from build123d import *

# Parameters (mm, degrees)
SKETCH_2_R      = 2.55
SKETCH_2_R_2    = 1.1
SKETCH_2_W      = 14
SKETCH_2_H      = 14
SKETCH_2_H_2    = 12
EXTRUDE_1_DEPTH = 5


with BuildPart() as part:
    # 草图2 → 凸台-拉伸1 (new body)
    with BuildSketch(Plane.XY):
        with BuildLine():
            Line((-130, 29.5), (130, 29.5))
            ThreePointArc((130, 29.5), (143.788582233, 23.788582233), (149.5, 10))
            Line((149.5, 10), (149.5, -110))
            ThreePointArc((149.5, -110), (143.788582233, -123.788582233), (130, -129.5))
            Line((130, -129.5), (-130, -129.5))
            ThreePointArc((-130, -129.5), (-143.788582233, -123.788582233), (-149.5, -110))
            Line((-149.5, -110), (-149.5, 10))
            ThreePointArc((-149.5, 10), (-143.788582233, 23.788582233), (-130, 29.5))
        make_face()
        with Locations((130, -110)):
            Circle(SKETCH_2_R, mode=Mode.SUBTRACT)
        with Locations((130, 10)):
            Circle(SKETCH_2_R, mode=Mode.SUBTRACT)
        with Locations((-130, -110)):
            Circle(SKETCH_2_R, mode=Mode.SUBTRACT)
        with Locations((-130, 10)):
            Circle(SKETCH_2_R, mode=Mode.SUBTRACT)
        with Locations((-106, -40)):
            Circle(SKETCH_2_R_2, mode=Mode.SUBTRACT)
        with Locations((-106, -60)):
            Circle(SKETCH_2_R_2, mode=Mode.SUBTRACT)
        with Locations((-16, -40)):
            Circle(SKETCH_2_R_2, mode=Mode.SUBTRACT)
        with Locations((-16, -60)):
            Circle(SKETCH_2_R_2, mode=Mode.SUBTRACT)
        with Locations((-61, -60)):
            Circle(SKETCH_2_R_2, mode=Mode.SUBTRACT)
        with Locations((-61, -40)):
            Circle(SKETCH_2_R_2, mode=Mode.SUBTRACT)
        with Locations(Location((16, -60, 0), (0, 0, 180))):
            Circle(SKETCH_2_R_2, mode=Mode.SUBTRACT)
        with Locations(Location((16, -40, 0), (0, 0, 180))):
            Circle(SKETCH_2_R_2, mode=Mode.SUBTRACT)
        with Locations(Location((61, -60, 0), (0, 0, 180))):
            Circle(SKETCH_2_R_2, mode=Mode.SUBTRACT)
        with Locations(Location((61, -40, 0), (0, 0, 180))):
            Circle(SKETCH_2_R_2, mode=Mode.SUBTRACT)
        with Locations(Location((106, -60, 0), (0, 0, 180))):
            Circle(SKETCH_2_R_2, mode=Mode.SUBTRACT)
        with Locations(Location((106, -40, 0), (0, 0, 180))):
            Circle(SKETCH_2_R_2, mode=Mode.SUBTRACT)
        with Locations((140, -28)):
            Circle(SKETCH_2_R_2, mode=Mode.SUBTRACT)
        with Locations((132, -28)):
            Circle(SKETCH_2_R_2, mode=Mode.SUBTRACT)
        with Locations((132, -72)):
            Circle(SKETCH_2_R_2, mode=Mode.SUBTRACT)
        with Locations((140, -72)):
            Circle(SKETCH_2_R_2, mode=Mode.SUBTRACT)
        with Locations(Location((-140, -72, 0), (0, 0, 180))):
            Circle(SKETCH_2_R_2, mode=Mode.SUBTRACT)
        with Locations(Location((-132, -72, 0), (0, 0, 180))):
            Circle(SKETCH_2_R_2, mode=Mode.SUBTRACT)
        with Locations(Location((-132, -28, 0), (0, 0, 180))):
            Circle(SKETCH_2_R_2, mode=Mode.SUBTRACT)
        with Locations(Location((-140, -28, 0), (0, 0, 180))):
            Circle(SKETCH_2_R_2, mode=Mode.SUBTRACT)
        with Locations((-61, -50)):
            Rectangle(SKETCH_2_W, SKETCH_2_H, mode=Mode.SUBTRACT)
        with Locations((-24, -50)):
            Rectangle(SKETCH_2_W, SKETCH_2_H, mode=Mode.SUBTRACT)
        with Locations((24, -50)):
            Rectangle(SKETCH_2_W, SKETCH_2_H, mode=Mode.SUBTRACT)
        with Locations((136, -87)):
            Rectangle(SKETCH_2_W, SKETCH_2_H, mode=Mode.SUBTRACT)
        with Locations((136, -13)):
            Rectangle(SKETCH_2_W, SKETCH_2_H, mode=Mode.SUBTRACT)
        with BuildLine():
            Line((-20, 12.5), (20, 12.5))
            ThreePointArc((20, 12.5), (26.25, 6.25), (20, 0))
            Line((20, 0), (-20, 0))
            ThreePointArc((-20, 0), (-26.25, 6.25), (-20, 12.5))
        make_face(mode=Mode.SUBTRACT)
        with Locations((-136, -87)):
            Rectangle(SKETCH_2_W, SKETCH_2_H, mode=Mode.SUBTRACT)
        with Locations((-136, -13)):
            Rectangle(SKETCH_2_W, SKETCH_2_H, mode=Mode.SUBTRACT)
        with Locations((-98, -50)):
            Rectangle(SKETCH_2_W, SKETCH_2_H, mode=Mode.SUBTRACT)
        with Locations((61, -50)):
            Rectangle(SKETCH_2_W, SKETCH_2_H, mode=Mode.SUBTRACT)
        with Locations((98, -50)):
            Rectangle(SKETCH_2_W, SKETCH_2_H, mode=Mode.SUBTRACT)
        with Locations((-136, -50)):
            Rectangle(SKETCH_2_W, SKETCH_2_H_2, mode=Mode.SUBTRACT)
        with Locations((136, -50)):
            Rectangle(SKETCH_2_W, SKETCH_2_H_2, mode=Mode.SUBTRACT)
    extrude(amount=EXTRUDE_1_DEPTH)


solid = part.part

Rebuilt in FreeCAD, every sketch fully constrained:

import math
import FreeCAD as App
import Part
import Sketcher
from FreeCAD import Vector
Q = App.Units.Quantity


def add_polygon(sketch, points):
    """Adds a closed chain of lines whose ends are joined by coincident constraints."""
    first, n = sketch.GeometryCount, len(points)
    for a, b in zip(points, points[1:] + points[:1]):
        sketch.addGeometry(Part.LineSegment(App.Vector(*a, 0), App.Vector(*b, 0)), False)
    for i in range(n):
        sketch.addConstraint(Sketcher.Constraint("Coincident", first + i, 2, first + (i + 1) % n, 1))

doc = App.newDocument("Part")
body = doc.addObject("PartDesign::Body", "Body")

# Sketch on XY plane
sketch1 = doc.addObject("Sketcher::SketchObject", "Sketch")
body.addObject(sketch1)
sketch1.AttachmentSupport = (doc.XY_Plane, [""])
sketch1.MapMode = "FlatFace"
sketch1.addGeometry(Part.LineSegment(Vector(130, 29.5, 0), Vector(-130, 29.5, 0)), False)  # 0
sketch1.addGeometry(Part.ArcOfCircle(Part.Circle(Vector(-130, 10, 0), Vector(0, 0, 1), 19.5), math.radians(90), math.radians(180)), False)  # 1
sketch1.addGeometry(Part.LineSegment(Vector(-149.5, 10, 0), Vector(-149.5, -110, 0)), False)  # 2
sketch1.addGeometry(Part.ArcOfCircle(Part.Circle(Vector(-130, -110, 0), Vector(0, 0, 1), 19.5), math.radians(180), math.radians(270)), False)  # 3
sketch1.addGeometry(Part.LineSegment(Vector(-130, -129.5, 0), Vector(130, -129.5, 0)), False)  # 4
sketch1.addGeometry(Part.ArcOfCircle(Part.Circle(Vector(130, -110, 0), Vector(0, 0, 1), 19.5), math.radians(-90), math.radians(0)), False)  # 5
sketch1.addGeometry(Part.LineSegment(Vector(149.5, -110, 0), Vector(149.5, 10, 0)), False)  # 6
sketch1.addGeometry(Part.ArcOfCircle(Part.Circle(Vector(130, 10, 0), Vector(0, 0, 1), 19.5), math.radians(0), math.radians(90)), False)  # 7
sketch1.addGeometry(Part.Circle(Vector(130, -110, 0), Vector(0, 0, 1), 2.55), False)  # 8
add_polygon(sketch1, [(129, -94), (129, -80), (143, -80), (143, -94)])  # lines 9-12
sketch1.addGeometry(Part.Circle(Vector(140, -72, 0), Vector(0, 0, 1), 1.1), False)  # 13
sketch1.addGeometry(Part.Circle(Vector(132, -72, 0), Vector(0, 0, 1), 1.1), False)  # 14
sketch1.addGeometry(Part.Circle(Vector(106, -60, 0), Vector(0, 0, 1), 1.1), False)  # 15
sketch1.addGeometry(Part.Circle(Vector(61, -60, 0), Vector(0, 0, 1), 1.1), False)  # 16
sketch1.addGeometry(Part.Circle(Vector(16, -60, 0), Vector(0, 0, 1), 1.1), False)  # 17
sketch1.addGeometry(Part.Circle(Vector(-130, -110, 0), Vector(0, 0, 1), 2.55), False)  # 18
add_polygon(sketch1, [(-143, -94), (-143, -80), (-129, -80), (-129, -94)])  # lines 19-22
sketch1.addGeometry(Part.Circle(Vector(-16, -60, 0), Vector(0, 0, 1), 1.1), False)  # 23
sketch1.addGeometry(Part.Circle(Vector(-61, -60, 0), Vector(0, 0, 1), 1.1), False)  # 24
sketch1.addGeometry(Part.Circle(Vector(-132, -72, 0), Vector(0, 0, 1), 1.1), False)  # 25
sketch1.addGeometry(Part.Circle(Vector(-140, -72, 0), Vector(0, 0, 1), 1.1), False)  # 26
sketch1.addGeometry(Part.Circle(Vector(-106, -60, 0), Vector(0, 0, 1), 1.1), False)  # 27
add_polygon(sketch1, [(129, -56), (129, -44), (143, -44), (143, -56)])  # lines 28-31
add_polygon(sketch1, [(91, -57), (91, -43), (105, -43), (105, -57)])  # lines 32-35
sketch1.addGeometry(Part.Circle(Vector(106, -40, 0), Vector(0, 0, 1), 1.1), False)  # 36
sketch1.addGeometry(Part.Circle(Vector(140, -28, 0), Vector(0, 0, 1), 1.1), False)  # 37
sketch1.addGeometry(Part.Circle(Vector(132, -28, 0), Vector(0, 0, 1), 1.1), False)  # 38
add_polygon(sketch1, [(54, -57), (54, -43), (68, -43), (68, -57)])  # lines 39-42
sketch1.addGeometry(Part.Circle(Vector(61, -40, 0), Vector(0, 0, 1), 1.1), False)  # 43
add_polygon(sketch1, [(17, -57), (17, -43), (31, -43), (31, -57)])  # lines 44-47
sketch1.addGeometry(Part.Circle(Vector(16, -40, 0), Vector(0, 0, 1), 1.1), False)  # 48
add_polygon(sketch1, [(129, -20), (129, -6), (143, -6), (143, -20)])  # lines 49-52
sketch1.addGeometry(Part.Circle(Vector(130, 10, 0), Vector(0, 0, 1), 2.55), False)  # 53
add_polygon(sketch1, [(-31, -57), (-31, -43), (-17, -43), (-17, -57)])  # lines 54-57
sketch1.addGeometry(Part.Circle(Vector(-16, -40, 0), Vector(0, 0, 1), 1.1), False)  # 58
add_polygon(sketch1, [(-68, -57), (-68, -43), (-54, -43), (-54, -57)])  # lines 59-62
sketch1.addGeometry(Part.Circle(Vector(-61, -40, 0), Vector(0, 0, 1), 1.1), False)  # 63
add_polygon(sketch1, [(-105, -57), (-105, -43), (-91, -43), (-91, -57)])  # lines 64-67
sketch1.addGeometry(Part.Circle(Vector(-106, -40, 0), Vector(0, 0, 1), 1.1), False)  # 68
add_polygon(sketch1, [(-143, -56), (-143, -44), (-129, -44), (-129, -56)])  # lines 69-72
sketch1.addGeometry(Part.Circle(Vector(-132, -28, 0), Vector(0, 0, 1), 1.1), False)  # 73
sketch1.addGeometry(Part.Circle(Vector(-140, -28, 0), Vector(0, 0, 1), 1.1), False)  # 74
sketch1.addGeometry(Part.LineSegment(Vector(-20, 12.5, 0), Vector(20, 12.5, 0)), False)  # 75
sketch1.addGeometry(Part.ArcOfCircle(Part.Circle(Vector(20, 6.25, 0), Vector(0, 0, 1), 6.25), math.radians(-90), math.radians(90)), False)  # 76
sketch1.addGeometry(Part.LineSegment(Vector(20, 0, 0), Vector(-20, 0, 0)), False)  # 77
sketch1.addGeometry(Part.ArcOfCircle(Part.Circle(Vector(-20, 6.25, 0), Vector(0, 0, 1), 6.25), math.radians(90), math.radians(270)), False)  # 78
add_polygon(sketch1, [(-143, -20), (-143, -6), (-129, -6), (-129, -20)])  # lines 79-82
sketch1.addGeometry(Part.Circle(Vector(-130, 10, 0), Vector(0, 0, 1), 2.55), False)  # 83
sketch1.addConstraint([
    Sketcher.Constraint("Tangent", 0, 2, 1, 1),
    Sketcher.Constraint("Tangent", 1, 2, 2, 1),
    Sketcher.Constraint("Tangent", 2, 2, 3, 1),
    Sketcher.Constraint("Tangent", 3, 2, 4, 1),
    Sketcher.Constraint("Tangent", 4, 2, 5, 1),
    Sketcher.Constraint("Tangent", 5, 2, 6, 1),
    Sketcher.Constraint("Tangent", 6, 2, 7, 1),
    Sketcher.Constraint("Tangent", 7, 2, 0, 1),
    Sketcher.Constraint("Tangent", 75, 2, 76, 2),
    Sketcher.Constraint("Tangent", 76, 1, 77, 1),
    Sketcher.Constraint("Tangent", 77, 2, 78, 2),
    Sketcher.Constraint("Tangent", 78, 1, 75, 1),
    Sketcher.Constraint("Horizontal", 0),
    Sketcher.Constraint("Vertical", 2),
    Sketcher.Constraint("Horizontal", 4),
    Sketcher.Constraint("Vertical", 6),
    Sketcher.Constraint("Vertical", 9),
    Sketcher.Constraint("Horizontal", 10),
    Sketcher.Constraint("Vertical", 11),
    Sketcher.Constraint("Horizontal", 12),
    Sketcher.Constraint("Vertical", 19),
    Sketcher.Constraint("Horizontal", 20),
    Sketcher.Constraint("Vertical", 21),
    Sketcher.Constraint("Horizontal", 22),
    Sketcher.Constraint("Vertical", 28),
    Sketcher.Constraint("Horizontal", 29),
    Sketcher.Constraint("Vertical", 30),
    Sketcher.Constraint("Horizontal", 31),
    Sketcher.Constraint("Vertical", 32),
    Sketcher.Constraint("Horizontal", 33),
    Sketcher.Constraint("Vertical", 34),
    Sketcher.Constraint("Horizontal", 35),
    Sketcher.Constraint("Vertical", 39),
    Sketcher.Constraint("Horizontal", 40),
    Sketcher.Constraint("Vertical", 41),
    Sketcher.Constraint("Horizontal", 42),
    Sketcher.Constraint("Vertical", 44),
    Sketcher.Constraint("Horizontal", 45),
    Sketcher.Constraint("Vertical", 46),
    Sketcher.Constraint("Horizontal", 47),
    Sketcher.Constraint("Vertical", 49),
    Sketcher.Constraint("Horizontal", 50),
    Sketcher.Constraint("Vertical", 51),
    Sketcher.Constraint("Horizontal", 52),
    Sketcher.Constraint("Vertical", 54),
    Sketcher.Constraint("Horizontal", 55),
    Sketcher.Constraint("Vertical", 56),
    Sketcher.Constraint("Horizontal", 57),
    Sketcher.Constraint("Vertical", 59),
    Sketcher.Constraint("Horizontal", 60),
    Sketcher.Constraint("Vertical", 61),
    Sketcher.Constraint("Horizontal", 62),
    Sketcher.Constraint("Vertical", 64),
    Sketcher.Constraint("Horizontal", 65),
    Sketcher.Constraint("Vertical", 66),
    Sketcher.Constraint("Horizontal", 67),
    Sketcher.Constraint("Vertical", 69),
    Sketcher.Constraint("Horizontal", 70),
    Sketcher.Constraint("Vertical", 71),
    Sketcher.Constraint("Horizontal", 72),
    Sketcher.Constraint("Horizontal", 75),
    Sketcher.Constraint("Horizontal", 77),
    Sketcher.Constraint("Vertical", 79),
    Sketcher.Constraint("Horizontal", 80),
    Sketcher.Constraint("Vertical", 81),
    Sketcher.Constraint("Horizontal", 82),
    Sketcher.Constraint("Coincident", 8, 3, 5, 3),
    Sketcher.Constraint("Coincident", 18, 3, 3, 3),
    Sketcher.Constraint("Coincident", 53, 3, 7, 3),
    Sketcher.Constraint("Coincident", 83, 3, 1, 3),
    Sketcher.Constraint("Equal", 1, 3),
    Sketcher.Constraint("Equal", 3, 5),
    Sketcher.Constraint("Equal", 5, 7),
    Sketcher.Constraint("Equal", 13, 14),
    Sketcher.Constraint("Equal", 14, 15),
    Sketcher.Constraint("Equal", 15, 16),
    Sketcher.Constraint("Equal", 16, 17),
    Sketcher.Constraint("Equal", 8, 18),
    Sketcher.Constraint("Equal", 17, 23),
    Sketcher.Constraint("Equal", 23, 24),
    Sketcher.Constraint("Equal", 24, 25),
    Sketcher.Constraint("Equal", 25, 26),
    Sketcher.Constraint("Equal", 26, 27),
    Sketcher.Constraint("Equal", 27, 36),
    Sketcher.Constraint("Equal", 36, 37),
    Sketcher.Constraint("Equal", 37, 38),
    Sketcher.Constraint("Equal", 38, 43),
    Sketcher.Constraint("Equal", 43, 48),
    Sketcher.Constraint("Equal", 18, 53),
    Sketcher.Constraint("Equal", 48, 58),
    Sketcher.Constraint("Equal", 58, 63),
    Sketcher.Constraint("Equal", 63, 68),
    Sketcher.Constraint("Equal", 68, 73),
    Sketcher.Constraint("Equal", 73, 74),
    Sketcher.Constraint("Equal", 53, 83),
    Sketcher.Constraint("Symmetric", 76, 1, 77, 2, -1, 1),
    Sketcher.Constraint("Symmetric", 17, 3, 23, 3, -2),
    Sketcher.Constraint("Symmetric", 16, 3, 24, 3, -2),
    Sketcher.Constraint("Symmetric", 14, 3, 25, 3, -2),
    Sketcher.Constraint("Symmetric", 13, 3, 26, 3, -2),
    Sketcher.Constraint("Symmetric", 15, 3, 27, 3, -2),
    Sketcher.Constraint("Symmetric", 48, 3, 58, 3, -2),
    Sketcher.Constraint("Symmetric", 43, 3, 63, 3, -2),
    Sketcher.Constraint("Symmetric", 36, 3, 68, 3, -2),
    Sketcher.Constraint("Symmetric", 38, 3, 73, 3, -2),
    Sketcher.Constraint("Symmetric", 37, 3, 74, 3, -2),
    Sketcher.Constraint("Symmetric", 10, 2, 19, 2, -2),
    Sketcher.Constraint("Symmetric", 12, 2, 21, 2, -2),
    Sketcher.Constraint("Symmetric", 45, 2, 54, 2, -2),
    Sketcher.Constraint("Symmetric", 47, 2, 56, 2, -2),
    Sketcher.Constraint("Symmetric", 40, 2, 59, 2, -2),
    Sketcher.Constraint("Symmetric", 42, 2, 61, 2, -2),
    Sketcher.Constraint("Symmetric", 33, 2, 64, 2, -2),
    Sketcher.Constraint("Symmetric", 35, 2, 66, 2, -2),
    Sketcher.Constraint("Symmetric", 29, 2, 69, 2, -2),
    Sketcher.Constraint("Symmetric", 31, 2, 71, 2, -2),
    Sketcher.Constraint("Symmetric", 50, 2, 79, 2, -2),
    Sketcher.Constraint("Symmetric", 52, 2, 81, 2, -2),
    Sketcher.Constraint("Horizontal", 13, 3, 14, 3),
    Sketcher.Constraint("Horizontal", 15, 3, 16, 3),
    Sketcher.Constraint("Horizontal", 16, 3, 17, 3),
    Sketcher.Constraint("Horizontal", 37, 3, 38, 3),
    Sketcher.Constraint("Horizontal", 36, 3, 43, 3),
    Sketcher.Constraint("Horizontal", 43, 3, 48, 3),
    Sketcher.Constraint("Horizontal", 33, 2, 39, 2),
    Sketcher.Constraint("Horizontal", 35, 2, 41, 2),
    Sketcher.Constraint("Horizontal", 40, 2, 44, 2),
    Sketcher.Constraint("Horizontal", 42, 2, 46, 2),
    Sketcher.Constraint("Vertical", 15, 3, 36, 3),
    Sketcher.Constraint("Vertical", 13, 3, 37, 3),
    Sketcher.Constraint("Vertical", 14, 3, 38, 3),
    Sketcher.Constraint("Vertical", 16, 3, 43, 3),
    Sketcher.Constraint("Vertical", 17, 3, 48, 3),
    Sketcher.Constraint("Vertical", 12, 2, 28, 2),
    Sketcher.Constraint("Vertical", 11, 2, 29, 2),
    Sketcher.Constraint("Vertical", 31, 2, 49, 2),
    Sketcher.Constraint("Vertical", 30, 2, 50, 2),
    Sketcher.Constraint("Equal", 31, 33),
    Sketcher.Constraint("Equal", 35, 40),
    Sketcher.Constraint("Equal", 42, 45),
    Sketcher.Constraint("Equal", 82, 9),
    Sketcher.Constraint("Equal", 21, 32),
    Sketcher.Constraint("Equal", 46, 49),
    Sketcher.Constraint("Diameter", 8, Q("5.1 mm")),
    Sketcher.Constraint("Diameter", 13, Q("2.2 mm")),
    Sketcher.Constraint("Radius", 1, Q("19.5 mm")),
    Sketcher.Constraint("DistanceX", 0, 2, 0, 1, Q("260 mm")),
    Sketcher.Constraint("DistanceX", 10, 1, 10, 2, Q("14 mm")),
    Sketcher.Constraint("DistanceX", 75, 1, 75, 2, Q("40 mm")),
    Sketcher.Constraint("DistanceY", 2, 2, 2, 1, Q("120 mm")),
    Sketcher.Constraint("DistanceY", 28, 1, 28, 2, Q("12 mm")),
    Sketcher.Constraint("Radius", 76, Q("6.25 mm")),
    Sketcher.Constraint("DistanceX", 1, 3, -1, 1, Q("130 mm")),
    Sketcher.Constraint("DistanceY", -1, 1, 1, 3, Q("10 mm")),
    Sketcher.Constraint("DistanceX", -1, 1, 13, 3, Q("140 mm")),
    Sketcher.Constraint("DistanceY", 13, 3, -1, 1, Q("72 mm")),
    Sketcher.Constraint("DistanceX", -1, 1, 14, 3, Q("132 mm")),
    Sketcher.Constraint("DistanceX", -1, 1, 15, 3, Q("106 mm")),
    Sketcher.Constraint("DistanceY", 15, 3, -1, 1, Q("60 mm")),
    Sketcher.Constraint("DistanceX", -1, 1, 16, 3, Q("61 mm")),
    Sketcher.Constraint("DistanceX", -1, 1, 17, 3, Q("16 mm")),
    Sketcher.Constraint("DistanceY", 36, 3, -1, 1, Q("40 mm")),
    Sketcher.Constraint("DistanceY", 37, 3, -1, 1, Q("28 mm")),
    Sketcher.Constraint("DistanceX", -1, 1, 9, 2, Q("129 mm")),
    Sketcher.Constraint("DistanceY", 9, 2, -1, 1, Q("80 mm")),
    Sketcher.Constraint("DistanceY", 28, 2, -1, 1, Q("44 mm")),
    Sketcher.Constraint("DistanceX", -1, 1, 32, 2, Q("91 mm")),
    Sketcher.Constraint("DistanceY", 32, 2, -1, 1, Q("43 mm")),
    Sketcher.Constraint("DistanceX", -1, 1, 39, 2, Q("54 mm")),
    Sketcher.Constraint("DistanceX", -1, 1, 44, 2, Q("17 mm")),
    Sketcher.Constraint("DistanceY", 49, 2, -1, 1, Q("6 mm")),
])
pad1 = doc.addObject("PartDesign::Pad", "Pad")
body.addObject(pad1)
pad1.Profile = sketch1
pad1.Length = 5

doc.recompute()
